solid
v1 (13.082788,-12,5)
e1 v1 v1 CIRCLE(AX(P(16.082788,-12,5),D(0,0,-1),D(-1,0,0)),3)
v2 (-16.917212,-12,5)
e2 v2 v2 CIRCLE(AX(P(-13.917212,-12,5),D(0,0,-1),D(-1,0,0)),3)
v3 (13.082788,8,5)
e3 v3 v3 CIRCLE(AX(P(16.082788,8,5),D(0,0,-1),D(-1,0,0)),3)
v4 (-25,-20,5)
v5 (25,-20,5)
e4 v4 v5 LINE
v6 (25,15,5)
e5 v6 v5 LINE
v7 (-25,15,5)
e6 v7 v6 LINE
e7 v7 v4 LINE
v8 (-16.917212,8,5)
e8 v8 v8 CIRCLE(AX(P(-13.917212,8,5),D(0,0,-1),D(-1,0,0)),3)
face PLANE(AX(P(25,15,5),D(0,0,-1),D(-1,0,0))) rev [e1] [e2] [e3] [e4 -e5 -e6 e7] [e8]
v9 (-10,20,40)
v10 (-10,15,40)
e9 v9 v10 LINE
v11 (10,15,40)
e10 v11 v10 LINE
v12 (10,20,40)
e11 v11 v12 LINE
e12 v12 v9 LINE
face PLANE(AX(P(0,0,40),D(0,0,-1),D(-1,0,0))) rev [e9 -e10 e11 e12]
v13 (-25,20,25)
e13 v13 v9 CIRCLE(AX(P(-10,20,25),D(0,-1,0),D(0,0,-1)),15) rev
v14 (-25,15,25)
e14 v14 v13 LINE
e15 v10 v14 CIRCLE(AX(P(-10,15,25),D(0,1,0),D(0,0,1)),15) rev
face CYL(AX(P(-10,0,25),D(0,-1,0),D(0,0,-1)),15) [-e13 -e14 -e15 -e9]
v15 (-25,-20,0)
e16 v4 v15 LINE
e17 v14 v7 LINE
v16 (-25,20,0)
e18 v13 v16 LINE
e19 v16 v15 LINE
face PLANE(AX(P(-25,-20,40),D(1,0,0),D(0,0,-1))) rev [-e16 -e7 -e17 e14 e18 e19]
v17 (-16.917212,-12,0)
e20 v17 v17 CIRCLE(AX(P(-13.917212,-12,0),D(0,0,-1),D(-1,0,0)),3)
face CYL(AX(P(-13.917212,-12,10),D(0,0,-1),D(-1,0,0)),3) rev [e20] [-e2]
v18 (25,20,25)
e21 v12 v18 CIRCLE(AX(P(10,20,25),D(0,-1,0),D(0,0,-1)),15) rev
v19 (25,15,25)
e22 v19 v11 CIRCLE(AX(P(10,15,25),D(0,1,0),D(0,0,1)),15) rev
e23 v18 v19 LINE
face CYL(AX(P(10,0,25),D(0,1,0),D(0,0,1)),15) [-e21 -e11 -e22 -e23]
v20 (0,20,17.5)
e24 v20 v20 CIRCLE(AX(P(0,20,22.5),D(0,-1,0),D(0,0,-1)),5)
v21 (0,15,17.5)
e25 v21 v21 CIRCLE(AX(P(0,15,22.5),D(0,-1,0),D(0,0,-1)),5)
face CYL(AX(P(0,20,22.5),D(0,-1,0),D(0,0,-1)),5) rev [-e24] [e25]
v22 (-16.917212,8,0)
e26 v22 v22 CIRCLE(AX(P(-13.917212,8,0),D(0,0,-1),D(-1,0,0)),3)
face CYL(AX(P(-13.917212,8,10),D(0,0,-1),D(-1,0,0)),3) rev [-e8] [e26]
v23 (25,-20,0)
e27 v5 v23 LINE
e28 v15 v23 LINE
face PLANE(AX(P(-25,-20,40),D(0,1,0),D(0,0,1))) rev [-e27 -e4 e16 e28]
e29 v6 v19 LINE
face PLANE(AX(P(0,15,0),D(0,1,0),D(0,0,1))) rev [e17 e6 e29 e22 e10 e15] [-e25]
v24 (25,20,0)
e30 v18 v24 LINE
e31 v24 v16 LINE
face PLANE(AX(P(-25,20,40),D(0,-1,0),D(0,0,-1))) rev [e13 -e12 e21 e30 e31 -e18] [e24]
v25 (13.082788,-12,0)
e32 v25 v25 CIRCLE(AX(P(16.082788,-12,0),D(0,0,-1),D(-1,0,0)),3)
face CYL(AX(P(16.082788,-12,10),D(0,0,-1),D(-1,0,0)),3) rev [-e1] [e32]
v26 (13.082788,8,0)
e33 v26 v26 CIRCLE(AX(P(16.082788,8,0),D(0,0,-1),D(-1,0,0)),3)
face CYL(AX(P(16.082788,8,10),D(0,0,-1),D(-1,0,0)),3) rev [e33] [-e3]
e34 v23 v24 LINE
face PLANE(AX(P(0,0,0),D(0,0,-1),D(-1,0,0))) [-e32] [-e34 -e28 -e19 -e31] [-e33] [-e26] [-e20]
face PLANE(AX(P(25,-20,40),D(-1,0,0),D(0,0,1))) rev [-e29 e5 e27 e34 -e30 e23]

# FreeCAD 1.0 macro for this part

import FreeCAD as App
import Part
import Sketcher

V = App.Vector
Q = App.Units.Quantity


def edges_at(feature, points):
    """Names of the edges that pass closest to the given points."""
    edges = feature.Shape.Edges
    near = lambda p: min(range(len(edges)), key=lambda i: edges[i].distToShape(Part.Vertex(*p))[0])
    return sorted({f"Edge{near(p) + 1}" for p in points})

doc = App.newDocument("Part")
body = doc.addObject("PartDesign::Body", "Body")

# Sketch on XY plane
sketch1 = doc.addObject("Sketcher::SketchObject", "Sketch")
body.addObject(sketch1)
sketch1.AttachmentSupport = (doc.XY_Plane, [""])
sketch1.MapMode = "FlatFace"
sketch1.addGeometry(Part.LineSegment(V(-25, 20, 0), V(-25, -20, 0)), False)
sketch1.addGeometry(Part.LineSegment(V(-25, -20, 0), V(25, -20, 0)), False)
sketch1.addGeometry(Part.LineSegment(V(25, -20, 0), V(25, 20, 0)), False)
sketch1.addGeometry(Part.LineSegment(V(25, 20, 0), V(-25, 20, 0)), False)
sketch1.addConstraint(Sketcher.Constraint("Coincident", 0, 2, 1, 1))
sketch1.addConstraint(Sketcher.Constraint("Coincident", 1, 2, 2, 1))
sketch1.addConstraint(Sketcher.Constraint("Coincident", 2, 2, 3, 1))
sketch1.addConstraint(Sketcher.Constraint("Coincident", 3, 2, 0, 1))
sketch1.addConstraint(Sketcher.Constraint("Vertical", 0))
sketch1.addConstraint(Sketcher.Constraint("Horizontal", 1))
sketch1.addConstraint(Sketcher.Constraint("Vertical", 2))
sketch1.addConstraint(Sketcher.Constraint("Horizontal", 3))
sketch1.addConstraint(Sketcher.Constraint("Symmetric", 0, 2, 2, 2, -1, 1))
sketch1.addConstraint(Sketcher.Constraint("DistanceX", 1, 1, 1, 2, Q("50 mm")))
sketch1.addConstraint(Sketcher.Constraint("DistanceY", 0, 2, 0, 1, Q("40 mm")))
pad1 = doc.addObject("PartDesign::Pad", "Pad")
body.addObject(pad1)
pad1.Profile = sketch1
pad1.Length = 40

# Sketch on XZ plane
sketch2 = doc.addObject("Sketcher::SketchObject", "Sketch001")
body.addObject(sketch2)
sketch2.AttachmentSupport = (doc.XZ_Plane, [""])
sketch2.MapMode = "FlatFace"
sketch2.AttachmentOffset = App.Placement(V(0, 0, 20), App.Rotation())
sketch2.addGeometry(Part.LineSegment(V(-25, 40, 0), V(-25, 5, 0)), False)
sketch2.addGeometry(Part.LineSegment(V(-25, 5, 0), V(25, 5, 0)), False)
sketch2.addGeometry(Part.LineSegment(V(25, 5, 0), V(25, 40, 0)), False)
sketch2.addGeometry(Part.LineSegment(V(25, 40, 0), V(-25, 40, 0)), False)
sketch2.addConstraint(Sketcher.Constraint("Coincident", 0, 2, 1, 1))
sketch2.addConstraint(Sketcher.Constraint("Coincident", 1, 2, 2, 1))
sketch2.addConstraint(Sketcher.Constraint("Coincident", 2, 2, 3, 1))
sketch2.addConstraint(Sketcher.Constraint("Coincident", 3, 2, 0, 1))
sketch2.addConstraint(Sketcher.Constraint("Vertical", 0))
sketch2.addConstraint(Sketcher.Constraint("Horizontal", 1))
sketch2.addConstraint(Sketcher.Constraint("Vertical", 2))
sketch2.addConstraint(Sketcher.Constraint("Horizontal", 3))
sketch2.addConstraint(Sketcher.Constraint("DistanceX", 1, 1, 1, 2, Q("50 mm")))
sketch2.addConstraint(Sketcher.Constraint("DistanceY", 0, 2, 0, 1, Q("35 mm")))
sketch2.addConstraint(Sketcher.Constraint("DistanceX", 0, 2, -1, 1, Q("25 mm")))
sketch2.addConstraint(Sketcher.Constraint("DistanceY", -1, 1, 0, 2, Q("5 mm")))
pocket1 = doc.addObject("PartDesign::Pocket", "Pocket")
body.addObject(pocket1)
pocket1.Profile = sketch2
pocket1.Length = 35

# Sketch on XZ plane
sketch3 = doc.addObject("Sketcher::SketchObject", "Sketch002")
body.addObject(sketch3)
sketch3.AttachmentSupport = (doc.XZ_Plane, [""])
sketch3.MapMode = "FlatFace"
sketch3.AttachmentOffset = App.Placement(V(0, 0, -15), App.Rotation())
sketch3.addGeometry(Part.Circle(V(0, 22, 0), V(0, 0, 1), 5), False)
sketch3.addConstraint(Sketcher.Constraint("PointOnObject", 0, 3, -2))
sketch3.addConstraint(Sketcher.Constraint("Diameter", 0, Q("10 mm")))
sketch3.addConstraint(Sketcher.Constraint("DistanceY", -1, 1, 0, 3, Q("22.5 mm")))
pocket2 = doc.addObject("PartDesign::Pocket", "Pocket001")
body.addObject(pocket2)
pocket2.Profile = sketch3
pocket2.Type = "ThroughAll"

# Sketch on XY plane
sketch4 = doc.addObject("Sketcher::SketchObject", "Sketch003")
body.addObject(sketch4)
sketch4.AttachmentSupport = (doc.XY_Plane, [""])
sketch4.MapMode = "FlatFace"
sketch4.addGeometry(Part.Circle(V(-13.9, -12, 0), V(0, 0, 1), 3), False)
sketch4.addGeometry(Part.Circle(V(16.1, -12, 0), V(0, 0, 1), 3), False)
sketch4.addGeometry(Part.Circle(V(16.1, 8, 0), V(0, 0, 1), 3), False)
sketch4.addGeometry(Part.Circle(V(-13.9, 8, 0), V(0, 0, 1), 3), False)
sketch4.addConstraint(Sketcher.Constraint("Equal", 0, 1))
sketch4.addConstraint(Sketcher.Constraint("Equal", 1, 2))
sketch4.addConstraint(Sketcher.Constraint("Equal", 2, 3))
sketch4.addConstraint(Sketcher.Constraint("Horizontal", 0, 3, 1, 3))
sketch4.addConstraint(Sketcher.Constraint("Horizontal", 2, 3, 3, 3))
sketch4.addConstraint(Sketcher.Constraint("Vertical", 1, 3, 2, 3))
sketch4.addConstraint(Sketcher.Constraint("Vertical", 0, 3, 3, 3))
sketch4.addConstraint(Sketcher.Constraint("Diameter", 0, Q("6 mm")))
sketch4.addConstraint(Sketcher.Constraint("DistanceY", 0, 3, -1, 1, Q("12 mm")))
sketch4.addConstraint(Sketcher.Constraint("DistanceY", -1, 1, 2, 3, Q("8 mm")))
sketch4.addConstraint(Sketcher.Constraint("DistanceX", 0, 3, 1, 3, Q("30 mm")))
sketch4.addConstraint(Sketcher.Constraint("DistanceX", 0, 3, -1, 1, Q("13.917212 mm")))
pocket3 = doc.addObject("PartDesign::Pocket", "Pocket002")
body.addObject(pocket3)
pocket3.Profile = sketch4
pocket3.Length = 10
pocket3.Reversed = True
doc.recompute()

fillet = doc.addObject("PartDesign::Fillet", "Fillet")
body.addObject(fillet)
fillet.Base = (pocket3, edges_at(pocket3, [(-25, 17.5, 40), (25, 17.5, 40)]))
fillet.Radius = 15

doc.recompute()
